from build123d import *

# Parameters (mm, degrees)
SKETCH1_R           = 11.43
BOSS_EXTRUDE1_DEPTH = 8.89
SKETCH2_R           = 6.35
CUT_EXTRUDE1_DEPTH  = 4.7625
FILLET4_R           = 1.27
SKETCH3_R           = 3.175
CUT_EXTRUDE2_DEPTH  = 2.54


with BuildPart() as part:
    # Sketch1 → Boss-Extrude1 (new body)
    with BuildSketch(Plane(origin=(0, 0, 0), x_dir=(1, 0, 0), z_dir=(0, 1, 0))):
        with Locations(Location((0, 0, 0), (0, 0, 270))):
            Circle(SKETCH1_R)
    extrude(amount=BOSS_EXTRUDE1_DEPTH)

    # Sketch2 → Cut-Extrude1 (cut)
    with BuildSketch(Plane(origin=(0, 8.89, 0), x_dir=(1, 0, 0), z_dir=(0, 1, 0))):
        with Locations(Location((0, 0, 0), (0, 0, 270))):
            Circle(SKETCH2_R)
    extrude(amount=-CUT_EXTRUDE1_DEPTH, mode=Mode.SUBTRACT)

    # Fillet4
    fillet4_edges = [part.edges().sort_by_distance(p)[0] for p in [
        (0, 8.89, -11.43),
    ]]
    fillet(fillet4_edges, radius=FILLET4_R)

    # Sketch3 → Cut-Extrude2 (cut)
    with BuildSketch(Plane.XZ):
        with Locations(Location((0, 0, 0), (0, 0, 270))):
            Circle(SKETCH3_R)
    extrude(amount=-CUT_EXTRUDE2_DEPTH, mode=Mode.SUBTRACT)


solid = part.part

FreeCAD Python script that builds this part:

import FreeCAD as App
import Part
import Sketcher
from FreeCAD import Vector
Q = App.Units.Quantity


def edges_at(feature, points):
    """Names of the edges that pass closest to the given points."""
    edges = feature.Shape.Edges
    near = lambda p: min(range(len(edges)), key=lambda i: edges[i].distToShape(Part.Vertex(*p))[0])
    return sorted({f"Edge{near(p) + 1}" for p in points})

doc = App.newDocument("Part")
params = doc.addObject("Spreadsheet::Sheet", "Params")
for row, (alias, value) in enumerate([
    ("sketch1_diameter", "0.9 in"),
    ("pad1_length", "0.35 in"),
    ("sketch2_diameter", "0.5 in"),
    ("pocket1_length", "0.1875 in"),
    ("fillet_radius", "0.05 in"),
    ("sketch3_diameter", "0.25 in"),
    ("pocket2_length", "0.1 in"),
], start=1):
    params.set(f"A{row}", alias)
    params.set(f"B{row}", "=" + value)
    params.setAlias(f"B{row}", alias)

body = doc.addObject("PartDesign::Body", "Body")

# Sketch on XZ plane
sketch1 = body.newObject("Sketcher::SketchObject", "Sketch")
sketch1.AttachmentSupport = (doc.getObject("XZ_Plane"), [""])
sketch1.MapMode = "FlatFace"
sketch1.addGeometry(Part.Circle(Vector(0, 0, 0), Vector(0, 0, 1), 11.43), False)
sketch1.addConstraint([
    Sketcher.Constraint("Coincident", 0, 3, -1, 1),
    Sketcher.Constraint("Diameter", 0, Q("0.9 in")),
])
sketch1.setExpression("Constraints[1]", "Params.sketch1_diameter")
pad1 = body.newObject("PartDesign::Pad", "Pad")
pad1.Profile = sketch1
pad1.setExpression("Length", "Params.pad1_length")
pad1.Reversed = True

# Sketch on XZ plane
sketch2 = body.newObject("Sketcher::SketchObject", "Sketch001")
sketch2.AttachmentSupport = (doc.getObject("XZ_Plane"), [""])
sketch2.MapMode = "FlatFace"
sketch2.AttachmentOffset = App.Placement(Vector(0, 0, -0.35 * 25.4), App.Rotation())
sketch2.addGeometry(Part.Circle(Vector(0, 0, 0), Vector(0, 0, 1), 6.35), False)
sketch2.addConstraint([
    Sketcher.Constraint("Coincident", 0, 3, -1, 1),
    Sketcher.Constraint("Diameter", 0, Q("0.5 in")),
])
sketch2.setExpression("Constraints[1]", "Params.sketch2_diameter")
pocket1 = body.newObject("PartDesign::Pocket", "Pocket")
pocket1.Profile = sketch2
pocket1.setExpression("Length", "Params.pocket1_length")
pocket1.Reversed = True
doc.recompute()

fillet = body.newObject("PartDesign::Fillet", "Fillet")
fillet.Base = (pocket1, edges_at(pocket1, [(0, 8.89, -11.43)]))
fillet.setExpression("Radius", "Params.fillet_radius")

# Sketch on XZ plane
sketch3 = body.newObject("Sketcher::SketchObject", "Sketch002")
sketch3.AttachmentSupport = (doc.getObject("XZ_Plane"), [""])
sketch3.MapMode = "FlatFace"
sketch3.addGeometry(Part.Circle(Vector(0, 0, 0), Vector(0, 0, 1), 3.175), False)
sketch3.addConstraint([
    Sketcher.Constraint("Coincident", 0, 3, -1, 1),
    Sketcher.Constraint("Diameter", 0, Q("0.25 in")),
])
sketch3.setExpression("Constraints[1]", "Params.sketch3_diameter")
pocket2 = body.newObject("PartDesign::Pocket", "Pocket001")
pocket2.Profile = sketch3
pocket2.setExpression("Length", "Params.pocket2_length")

doc.recompute()
